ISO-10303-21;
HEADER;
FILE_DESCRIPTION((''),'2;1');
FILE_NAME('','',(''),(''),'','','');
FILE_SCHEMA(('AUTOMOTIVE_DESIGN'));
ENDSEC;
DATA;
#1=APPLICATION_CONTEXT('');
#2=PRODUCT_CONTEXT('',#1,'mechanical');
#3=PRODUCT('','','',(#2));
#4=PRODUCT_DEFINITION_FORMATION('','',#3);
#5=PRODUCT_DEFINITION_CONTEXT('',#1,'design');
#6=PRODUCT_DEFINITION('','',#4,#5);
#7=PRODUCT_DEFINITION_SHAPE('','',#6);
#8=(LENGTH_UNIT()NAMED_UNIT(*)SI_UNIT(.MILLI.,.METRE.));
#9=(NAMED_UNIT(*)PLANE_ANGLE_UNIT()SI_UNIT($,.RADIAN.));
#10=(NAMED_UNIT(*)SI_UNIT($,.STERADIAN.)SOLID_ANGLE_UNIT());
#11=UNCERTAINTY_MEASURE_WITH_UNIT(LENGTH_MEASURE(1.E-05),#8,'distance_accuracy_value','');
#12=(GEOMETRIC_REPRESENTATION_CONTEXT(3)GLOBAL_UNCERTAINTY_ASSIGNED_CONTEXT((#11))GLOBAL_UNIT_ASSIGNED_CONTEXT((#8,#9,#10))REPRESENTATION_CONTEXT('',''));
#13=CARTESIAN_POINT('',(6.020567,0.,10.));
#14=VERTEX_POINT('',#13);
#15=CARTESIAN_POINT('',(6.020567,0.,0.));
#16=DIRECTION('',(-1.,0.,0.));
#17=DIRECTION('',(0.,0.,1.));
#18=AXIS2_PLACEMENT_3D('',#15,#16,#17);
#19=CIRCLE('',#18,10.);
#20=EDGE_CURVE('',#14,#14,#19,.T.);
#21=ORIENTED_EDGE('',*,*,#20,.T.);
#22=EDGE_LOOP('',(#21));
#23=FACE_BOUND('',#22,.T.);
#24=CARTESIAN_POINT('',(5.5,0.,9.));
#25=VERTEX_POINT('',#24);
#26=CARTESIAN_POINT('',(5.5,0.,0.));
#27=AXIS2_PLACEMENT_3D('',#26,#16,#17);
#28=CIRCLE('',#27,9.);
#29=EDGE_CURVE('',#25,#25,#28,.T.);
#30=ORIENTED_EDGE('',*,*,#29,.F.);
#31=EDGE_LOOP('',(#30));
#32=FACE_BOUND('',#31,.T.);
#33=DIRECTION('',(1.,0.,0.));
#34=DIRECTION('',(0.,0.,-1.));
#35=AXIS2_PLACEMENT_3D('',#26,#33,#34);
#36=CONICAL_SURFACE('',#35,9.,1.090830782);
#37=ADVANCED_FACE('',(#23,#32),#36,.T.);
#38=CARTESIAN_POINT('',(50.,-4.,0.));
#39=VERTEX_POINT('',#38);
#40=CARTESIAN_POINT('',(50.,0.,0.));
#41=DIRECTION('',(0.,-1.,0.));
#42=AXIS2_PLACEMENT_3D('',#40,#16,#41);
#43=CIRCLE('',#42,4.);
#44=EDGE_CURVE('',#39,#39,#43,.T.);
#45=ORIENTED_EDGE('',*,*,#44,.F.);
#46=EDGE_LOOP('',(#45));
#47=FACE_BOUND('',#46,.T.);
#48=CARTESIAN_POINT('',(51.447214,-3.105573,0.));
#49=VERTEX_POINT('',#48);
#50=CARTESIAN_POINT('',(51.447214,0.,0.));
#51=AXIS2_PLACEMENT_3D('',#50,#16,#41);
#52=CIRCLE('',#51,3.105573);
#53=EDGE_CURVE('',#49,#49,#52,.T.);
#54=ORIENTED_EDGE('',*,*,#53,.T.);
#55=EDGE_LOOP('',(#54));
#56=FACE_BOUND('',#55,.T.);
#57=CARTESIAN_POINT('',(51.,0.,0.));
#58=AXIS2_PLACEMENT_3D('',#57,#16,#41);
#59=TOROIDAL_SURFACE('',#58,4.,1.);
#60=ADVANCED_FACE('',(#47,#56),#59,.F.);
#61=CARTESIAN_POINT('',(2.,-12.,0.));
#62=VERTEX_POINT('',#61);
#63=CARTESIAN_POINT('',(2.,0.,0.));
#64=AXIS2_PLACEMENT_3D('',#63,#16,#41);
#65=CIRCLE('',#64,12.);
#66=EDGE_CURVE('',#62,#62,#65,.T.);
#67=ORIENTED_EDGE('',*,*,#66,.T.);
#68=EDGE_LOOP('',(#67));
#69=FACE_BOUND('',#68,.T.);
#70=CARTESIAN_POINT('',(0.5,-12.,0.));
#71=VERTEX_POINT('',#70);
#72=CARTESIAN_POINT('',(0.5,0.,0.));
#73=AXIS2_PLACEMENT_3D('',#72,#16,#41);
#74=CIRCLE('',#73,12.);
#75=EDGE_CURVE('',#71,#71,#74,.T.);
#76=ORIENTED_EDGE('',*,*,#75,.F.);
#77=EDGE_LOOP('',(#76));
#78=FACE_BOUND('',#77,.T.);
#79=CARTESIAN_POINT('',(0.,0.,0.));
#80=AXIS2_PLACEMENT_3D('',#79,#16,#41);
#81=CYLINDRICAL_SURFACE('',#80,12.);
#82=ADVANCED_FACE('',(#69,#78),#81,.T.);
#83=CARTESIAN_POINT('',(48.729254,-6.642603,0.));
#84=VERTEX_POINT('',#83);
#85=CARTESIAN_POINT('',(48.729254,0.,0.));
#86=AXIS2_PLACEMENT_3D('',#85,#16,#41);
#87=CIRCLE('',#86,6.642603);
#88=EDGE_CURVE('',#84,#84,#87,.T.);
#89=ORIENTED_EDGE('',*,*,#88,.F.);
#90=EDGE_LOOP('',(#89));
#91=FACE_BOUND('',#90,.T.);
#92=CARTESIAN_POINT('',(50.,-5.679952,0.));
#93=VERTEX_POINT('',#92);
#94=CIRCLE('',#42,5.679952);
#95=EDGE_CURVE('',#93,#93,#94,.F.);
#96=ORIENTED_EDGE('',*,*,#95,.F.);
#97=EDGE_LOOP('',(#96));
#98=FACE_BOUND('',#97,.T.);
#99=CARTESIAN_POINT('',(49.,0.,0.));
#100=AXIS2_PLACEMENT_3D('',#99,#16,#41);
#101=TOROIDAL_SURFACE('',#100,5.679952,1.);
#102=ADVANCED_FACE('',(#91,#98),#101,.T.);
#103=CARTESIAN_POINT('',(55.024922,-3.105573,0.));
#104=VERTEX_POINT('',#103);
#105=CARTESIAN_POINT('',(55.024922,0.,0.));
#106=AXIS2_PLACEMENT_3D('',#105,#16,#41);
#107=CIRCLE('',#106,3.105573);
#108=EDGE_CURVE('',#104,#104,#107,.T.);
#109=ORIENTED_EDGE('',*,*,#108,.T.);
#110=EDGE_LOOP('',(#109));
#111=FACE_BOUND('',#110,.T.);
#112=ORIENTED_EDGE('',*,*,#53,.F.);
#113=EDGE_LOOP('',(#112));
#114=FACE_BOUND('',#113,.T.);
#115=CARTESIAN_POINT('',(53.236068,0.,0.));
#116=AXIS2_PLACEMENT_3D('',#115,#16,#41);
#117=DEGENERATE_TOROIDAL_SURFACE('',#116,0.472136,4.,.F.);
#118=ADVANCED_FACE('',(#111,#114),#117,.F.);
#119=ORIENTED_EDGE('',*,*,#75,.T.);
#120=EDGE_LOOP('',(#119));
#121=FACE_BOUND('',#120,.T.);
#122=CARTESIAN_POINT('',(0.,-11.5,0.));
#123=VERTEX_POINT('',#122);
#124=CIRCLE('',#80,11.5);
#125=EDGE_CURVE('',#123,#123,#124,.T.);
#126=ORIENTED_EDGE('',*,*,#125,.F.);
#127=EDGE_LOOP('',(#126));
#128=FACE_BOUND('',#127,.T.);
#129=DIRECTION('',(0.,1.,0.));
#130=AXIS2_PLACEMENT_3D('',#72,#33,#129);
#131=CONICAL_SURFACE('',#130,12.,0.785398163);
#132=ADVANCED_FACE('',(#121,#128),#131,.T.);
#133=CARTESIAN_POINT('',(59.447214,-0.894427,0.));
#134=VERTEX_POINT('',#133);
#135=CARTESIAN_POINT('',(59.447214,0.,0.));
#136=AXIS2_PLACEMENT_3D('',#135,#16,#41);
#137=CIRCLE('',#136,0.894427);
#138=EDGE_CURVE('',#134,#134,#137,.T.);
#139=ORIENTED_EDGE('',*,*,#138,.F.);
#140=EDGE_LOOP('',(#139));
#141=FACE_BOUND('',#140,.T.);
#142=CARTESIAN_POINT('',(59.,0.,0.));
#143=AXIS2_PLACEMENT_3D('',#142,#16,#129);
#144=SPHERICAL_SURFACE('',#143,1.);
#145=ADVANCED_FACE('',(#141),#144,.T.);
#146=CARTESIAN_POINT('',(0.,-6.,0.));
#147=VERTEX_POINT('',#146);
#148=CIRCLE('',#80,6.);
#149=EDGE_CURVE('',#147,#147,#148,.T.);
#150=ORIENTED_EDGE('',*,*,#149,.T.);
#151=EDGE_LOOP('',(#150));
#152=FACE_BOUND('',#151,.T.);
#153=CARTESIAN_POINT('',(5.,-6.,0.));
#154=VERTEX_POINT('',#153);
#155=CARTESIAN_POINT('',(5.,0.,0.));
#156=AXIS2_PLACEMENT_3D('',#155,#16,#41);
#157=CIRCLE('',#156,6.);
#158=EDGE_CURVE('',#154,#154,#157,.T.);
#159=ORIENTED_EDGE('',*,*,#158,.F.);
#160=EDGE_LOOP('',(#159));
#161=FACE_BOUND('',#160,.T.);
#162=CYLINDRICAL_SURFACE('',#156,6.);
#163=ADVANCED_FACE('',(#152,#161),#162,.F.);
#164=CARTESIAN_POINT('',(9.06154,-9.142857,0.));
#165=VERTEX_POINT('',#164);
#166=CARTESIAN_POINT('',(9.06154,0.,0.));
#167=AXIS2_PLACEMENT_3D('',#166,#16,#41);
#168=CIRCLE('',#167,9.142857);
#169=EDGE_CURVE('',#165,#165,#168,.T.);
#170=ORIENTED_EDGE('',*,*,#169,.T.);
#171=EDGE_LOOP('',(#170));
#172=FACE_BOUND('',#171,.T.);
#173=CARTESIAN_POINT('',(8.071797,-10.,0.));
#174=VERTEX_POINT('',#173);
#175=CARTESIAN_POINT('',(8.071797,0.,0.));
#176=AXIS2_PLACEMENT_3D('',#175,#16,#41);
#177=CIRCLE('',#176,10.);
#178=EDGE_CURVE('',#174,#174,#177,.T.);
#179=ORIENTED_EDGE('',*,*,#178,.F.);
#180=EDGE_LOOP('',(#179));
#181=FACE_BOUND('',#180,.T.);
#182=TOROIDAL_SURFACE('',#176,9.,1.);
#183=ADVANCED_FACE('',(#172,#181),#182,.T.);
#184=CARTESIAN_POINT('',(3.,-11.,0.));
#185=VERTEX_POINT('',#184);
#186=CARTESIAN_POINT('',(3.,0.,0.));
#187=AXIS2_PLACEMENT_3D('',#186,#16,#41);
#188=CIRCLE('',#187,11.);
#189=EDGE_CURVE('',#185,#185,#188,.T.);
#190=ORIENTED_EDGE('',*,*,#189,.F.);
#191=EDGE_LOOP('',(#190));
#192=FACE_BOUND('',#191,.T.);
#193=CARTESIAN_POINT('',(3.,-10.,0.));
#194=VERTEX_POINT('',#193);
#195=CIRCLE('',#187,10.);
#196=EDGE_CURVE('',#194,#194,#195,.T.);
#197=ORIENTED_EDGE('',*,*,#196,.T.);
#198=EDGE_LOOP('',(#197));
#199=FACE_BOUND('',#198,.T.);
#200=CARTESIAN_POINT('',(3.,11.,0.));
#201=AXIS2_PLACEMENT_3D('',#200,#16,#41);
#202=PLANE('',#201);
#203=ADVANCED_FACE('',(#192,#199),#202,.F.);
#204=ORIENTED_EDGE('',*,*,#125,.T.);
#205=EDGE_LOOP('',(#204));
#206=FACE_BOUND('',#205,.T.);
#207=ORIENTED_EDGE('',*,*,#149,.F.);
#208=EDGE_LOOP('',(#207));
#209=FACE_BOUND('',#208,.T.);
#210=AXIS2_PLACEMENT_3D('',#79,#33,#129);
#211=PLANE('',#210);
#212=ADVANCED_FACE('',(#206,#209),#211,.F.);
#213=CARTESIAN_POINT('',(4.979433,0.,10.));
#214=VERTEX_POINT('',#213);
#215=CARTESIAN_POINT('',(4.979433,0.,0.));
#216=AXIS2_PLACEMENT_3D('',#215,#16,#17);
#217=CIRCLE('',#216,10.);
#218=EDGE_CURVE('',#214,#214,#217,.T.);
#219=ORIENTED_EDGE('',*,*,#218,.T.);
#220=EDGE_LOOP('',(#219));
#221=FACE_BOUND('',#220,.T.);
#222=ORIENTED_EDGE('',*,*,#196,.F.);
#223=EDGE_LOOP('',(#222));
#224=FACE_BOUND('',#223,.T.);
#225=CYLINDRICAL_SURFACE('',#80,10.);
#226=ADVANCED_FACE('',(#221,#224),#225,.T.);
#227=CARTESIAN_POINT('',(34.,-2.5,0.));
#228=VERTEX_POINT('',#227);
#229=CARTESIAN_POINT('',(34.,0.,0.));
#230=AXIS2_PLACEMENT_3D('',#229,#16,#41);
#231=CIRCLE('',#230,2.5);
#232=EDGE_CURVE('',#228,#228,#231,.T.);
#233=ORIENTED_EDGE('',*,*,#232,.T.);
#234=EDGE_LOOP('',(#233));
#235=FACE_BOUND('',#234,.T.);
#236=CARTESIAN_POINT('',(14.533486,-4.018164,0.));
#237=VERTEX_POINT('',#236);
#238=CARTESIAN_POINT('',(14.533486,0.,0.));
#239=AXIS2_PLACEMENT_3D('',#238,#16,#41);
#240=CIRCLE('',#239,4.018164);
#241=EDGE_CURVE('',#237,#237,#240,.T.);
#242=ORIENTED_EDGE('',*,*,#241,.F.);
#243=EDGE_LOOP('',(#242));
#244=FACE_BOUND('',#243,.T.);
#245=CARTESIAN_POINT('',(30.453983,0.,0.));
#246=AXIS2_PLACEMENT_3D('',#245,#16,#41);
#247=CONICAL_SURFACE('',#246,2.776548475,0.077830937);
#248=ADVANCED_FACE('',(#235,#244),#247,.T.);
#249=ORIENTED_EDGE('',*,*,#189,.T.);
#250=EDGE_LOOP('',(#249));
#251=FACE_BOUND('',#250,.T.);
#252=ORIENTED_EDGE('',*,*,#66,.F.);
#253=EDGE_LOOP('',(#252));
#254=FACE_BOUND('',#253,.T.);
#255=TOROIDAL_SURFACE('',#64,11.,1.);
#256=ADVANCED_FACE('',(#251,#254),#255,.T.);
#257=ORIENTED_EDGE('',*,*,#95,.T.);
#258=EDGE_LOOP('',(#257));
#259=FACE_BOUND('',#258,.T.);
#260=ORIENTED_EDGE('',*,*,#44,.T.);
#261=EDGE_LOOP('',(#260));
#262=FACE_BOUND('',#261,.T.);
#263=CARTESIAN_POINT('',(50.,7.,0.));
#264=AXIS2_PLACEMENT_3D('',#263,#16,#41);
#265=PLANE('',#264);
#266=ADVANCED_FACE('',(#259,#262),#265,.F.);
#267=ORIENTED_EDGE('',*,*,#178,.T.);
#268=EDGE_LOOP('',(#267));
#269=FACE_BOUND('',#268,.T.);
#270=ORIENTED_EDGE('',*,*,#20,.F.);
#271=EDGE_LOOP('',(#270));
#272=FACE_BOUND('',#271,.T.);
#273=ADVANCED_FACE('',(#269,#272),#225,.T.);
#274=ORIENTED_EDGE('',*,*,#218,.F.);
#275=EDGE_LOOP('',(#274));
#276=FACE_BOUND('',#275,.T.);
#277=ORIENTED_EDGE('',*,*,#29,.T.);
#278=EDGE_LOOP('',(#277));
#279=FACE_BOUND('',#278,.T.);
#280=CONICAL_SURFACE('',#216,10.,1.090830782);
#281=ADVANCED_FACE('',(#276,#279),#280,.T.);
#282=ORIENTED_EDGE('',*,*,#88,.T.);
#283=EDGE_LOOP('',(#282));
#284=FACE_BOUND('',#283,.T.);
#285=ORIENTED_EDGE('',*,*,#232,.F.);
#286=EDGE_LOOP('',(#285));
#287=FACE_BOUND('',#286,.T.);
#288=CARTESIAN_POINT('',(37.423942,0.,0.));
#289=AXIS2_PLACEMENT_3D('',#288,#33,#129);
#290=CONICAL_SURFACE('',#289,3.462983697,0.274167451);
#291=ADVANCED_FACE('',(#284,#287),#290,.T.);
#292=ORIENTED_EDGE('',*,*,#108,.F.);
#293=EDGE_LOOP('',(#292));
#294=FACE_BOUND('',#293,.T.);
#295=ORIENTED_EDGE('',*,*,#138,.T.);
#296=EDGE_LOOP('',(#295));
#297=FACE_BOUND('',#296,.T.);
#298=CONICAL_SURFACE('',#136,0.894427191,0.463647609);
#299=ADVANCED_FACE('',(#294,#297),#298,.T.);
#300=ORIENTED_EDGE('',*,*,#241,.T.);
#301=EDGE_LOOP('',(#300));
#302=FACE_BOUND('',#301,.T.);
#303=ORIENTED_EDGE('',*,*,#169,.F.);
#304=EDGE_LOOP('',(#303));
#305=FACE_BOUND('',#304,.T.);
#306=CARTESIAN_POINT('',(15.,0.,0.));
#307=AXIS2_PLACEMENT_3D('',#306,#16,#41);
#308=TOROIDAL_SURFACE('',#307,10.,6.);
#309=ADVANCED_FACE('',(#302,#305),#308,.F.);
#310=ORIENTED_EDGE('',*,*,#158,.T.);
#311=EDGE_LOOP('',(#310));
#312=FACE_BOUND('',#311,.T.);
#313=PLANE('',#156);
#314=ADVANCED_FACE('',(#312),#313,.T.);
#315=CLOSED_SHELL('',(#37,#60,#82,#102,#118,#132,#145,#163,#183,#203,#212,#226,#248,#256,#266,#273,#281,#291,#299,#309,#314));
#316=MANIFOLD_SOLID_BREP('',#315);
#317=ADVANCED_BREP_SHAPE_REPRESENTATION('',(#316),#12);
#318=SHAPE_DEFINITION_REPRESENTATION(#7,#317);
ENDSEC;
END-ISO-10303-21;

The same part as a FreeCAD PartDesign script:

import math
import FreeCAD as App
import Part
import Sketcher

V = App.Vector
Q = App.Units.Quantity


def edges_at(feature, points):
    """Names of the edges that pass closest to the given points."""
    edges = feature.Shape.Edges
    near = lambda p: min(range(len(edges)), key=lambda i: edges[i].distToShape(Part.Vertex(*p))[0])
    return sorted({f"Edge{near(p) + 1}" for p in points})


def add_polygon(sketch, points):
    """Adds a closed chain of lines whose ends are joined by coincident constraints."""
    first, n = sketch.GeometryCount, len(points)
    for a, b in zip(points, points[1:] + points[:1]):
        sketch.addGeometry(Part.LineSegment(App.Vector(*a, 0), App.Vector(*b, 0)), False)
    for i in range(n):
        sketch.addConstraint(Sketcher.Constraint("Coincident", first + i, 2, first + (i + 1) % n, 1))

doc = App.newDocument("Part")
body = doc.addObject("PartDesign::Body", "Body")

# Sketch on XY plane
sketch1 = body.newObject("Sketcher::SketchObject", "Sketch")
sketch1.AttachmentSupport = (doc.getObject("XY_Plane"), [""])
sketch1.MapMode = "FlatFace"
sketch1.addGeometry([
    Part.LineSegment(V(0, 11.5, 0), V(0, 0, 0)),  # 0
    Part.LineSegment(V(0, 0, 0), V(60, 0, 0)),  # 1
    Part.ArcOfCircle(Part.Circle(V(59, 0, 0), V(0, 0, 1), 1), math.radians(0), math.radians(63)),  # 2
    Part.LineSegment(V(59.4, 0.9, 0), V(55, 3.1, 0)),  # 3
    Part.ArcOfCircle(Part.Circle(V(53.2, -0.5, 0), V(0, 0, 1), 4), math.radians(63), math.radians(117)),  # 4
    Part.ArcOfCircle(Part.Circle(V(51, 4, 0), V(0, 0, 1), 1), math.radians(-180), math.radians(-63)),  # 5
    Part.LineSegment(V(50, 4, 0), V(50, 7, 0)),  # 6
    Part.LineSegment(V(50, 7, 0), V(37.4, 3.5, 0)),  # 7
    Part.LineSegment(V(37.4, 3.5, 0), V(34, 2.5, 0)),  # 8
    Part.LineSegment(V(34, 2.5, 0), V(30.5, 2.8, 0)),  # 9
    Part.LineSegment(V(30.5, 2.8, 0), V(14.5, 4, 0)),  # 10
    Part.ArcOfCircle(Part.Circle(V(15, 10, 0), V(0, 0, 1), 6), math.radians(-172), math.radians(-94)),  # 11
    Part.ArcOfCircle(Part.Circle(V(8.1, 9, 0), V(0, 0, 1), 1), math.radians(8), math.radians(90)),  # 12
    Part.LineSegment(V(8.1, 10, 0), V(3, 10, 0)),  # 13
    Part.LineSegment(V(3, 10, 0), V(3, 11, 0)),  # 14
    Part.ArcOfCircle(Part.Circle(V(2, 11, 0), V(0, 0, 1), 1), math.radians(0), math.radians(90)),  # 15
    Part.LineSegment(V(2, 12, 0), V(0.5, 12, 0)),  # 16
    Part.LineSegment(V(0.5, 12, 0), V(0, 11.5, 0)),  # 17
], False)
sketch1.addConstraint([
    Sketcher.Constraint("Coincident", 0, 2, 1, 1),
    Sketcher.Constraint("Coincident", 1, 2, 2, 1),
    Sketcher.Constraint("Tangent", 2, 2, 3, 1),
    Sketcher.Constraint("Tangent", 3, 2, 4, 1),
    Sketcher.Constraint("Tangent", 4, 2, 5, 2),
    Sketcher.Constraint("Tangent", 5, 1, 6, 1),
    Sketcher.Constraint("Coincident", 6, 2, 7, 1),
    Sketcher.Constraint("Coincident", 7, 2, 8, 1),
    Sketcher.Constraint("Coincident", 8, 2, 9, 1),
    Sketcher.Constraint("Coincident", 9, 2, 10, 1),
    Sketcher.Constraint("Tangent", 10, 2, 11, 2),
    Sketcher.Constraint("Tangent", 11, 1, 12, 1),
    Sketcher.Constraint("Tangent", 12, 2, 13, 1),
    Sketcher.Constraint("Coincident", 13, 2, 14, 1),
    Sketcher.Constraint("Tangent", 14, 2, 15, 1),
    Sketcher.Constraint("Tangent", 15, 2, 16, 1),
    Sketcher.Constraint("Coincident", 16, 2, 17, 1),
    Sketcher.Constraint("Coincident", 17, 2, 0, 1),
    Sketcher.Constraint("Vertical", 0),
    Sketcher.Constraint("Horizontal", 1),
    Sketcher.Constraint("Vertical", 6),
    Sketcher.Constraint("Horizontal", 13),
    Sketcher.Constraint("Vertical", 14),
    Sketcher.Constraint("Horizontal", 16),
    Sketcher.Constraint("Coincident", 0, 2, -1, 1),
    Sketcher.Constraint("Equal", 2, 5),
    Sketcher.Constraint("Equal", 5, 12),
    Sketcher.Constraint("Equal", 12, 15),
    Sketcher.Constraint("PointOnObject", 2, 3, -1),
    Sketcher.Constraint("Parallel", 7, 8),
    Sketcher.Constraint("Parallel", 9, 10),
    Sketcher.Constraint("Horizontal", 3, 2, 4, 2),
    Sketcher.Constraint("Horizontal", 11, 3, 12, 2),
    Sketcher.Constraint("Equal", 8, 9),
    Sketcher.Constraint("Radius", 2, 1.0),
    Sketcher.Constraint("Radius", 4, 4.0),
    Sketcher.Constraint("Radius", 11, 6.0),
    Sketcher.Constraint("DistanceX", 1, 1, 1, 2, 60.0),
    Sketcher.Constraint("DistanceY", 6, 1, 6, 2, 3.0),
    Sketcher.Constraint("DistanceY", 14, 1, 14, 2, 1.0),
    Sketcher.Constraint("Angle", 17, Q("-135 deg")),
    Sketcher.Constraint("DistanceX", 16, 2, 16, 1, 1.5),
    Sketcher.Constraint("DistanceY", 0, 2, 0, 1, 11.5),
    Sketcher.Constraint("DistanceX", -1, 1, 5, 3, 51.0),
    Sketcher.Constraint("DistanceY", -1, 1, 5, 3, 4.0),
    Sketcher.Constraint("DistanceX", -1, 1, 11, 3, 15.0),
    Sketcher.Constraint("DistanceY", -1, 1, 11, 3, 10.0),
    Sketcher.Constraint("DistanceX", -1, 1, 8, 2, 34.0),
    Sketcher.Constraint("DistanceY", -1, 1, 8, 2, 2.5),
    Sketcher.Constraint("Distance", 10, 15.96884),
])
revolution = body.newObject("PartDesign::Revolution", "Revolution")
revolution.Profile = sketch1
revolution.ReferenceAxis = (sketch1, ["H_Axis"])
revolution.Angle = 360

# Sketch on XY plane
sketch2 = body.newObject("Sketcher::SketchObject", "Sketch001")
sketch2.AttachmentSupport = (doc.getObject("XY_Plane"), [""])
sketch2.MapMode = "FlatFace"
add_polygon(sketch2, [(5, 10), (5.5, 9), (6, 10)])  # lines 0-2
sketch2.addConstraint([
    Sketcher.Constraint("Horizontal", 2),
    Sketcher.Constraint("Equal", 0, 1),
    Sketcher.Constraint("DistanceY", -1, 1, 0, 2, 9.0),
    Sketcher.Constraint("DistanceY", -1, 1, 1, 2, 10.0),
    Sketcher.Constraint("Angle", 0, Q("-62.5 deg")),
    Sketcher.Constraint("DistanceX", -1, 1, 0, 2, 5.5),
])
groove = body.newObject("PartDesign::Groove", "Groove")
groove.Profile = sketch2
groove.ReferenceAxis = (sketch2, ["H_Axis"])
groove.Angle = 360

# Sketch on YZ plane
sketch3 = body.newObject("Sketcher::SketchObject", "Sketch002")
sketch3.AttachmentSupport = (doc.getObject("YZ_Plane"), [""])
sketch3.MapMode = "FlatFace"
sketch3.addGeometry(Part.Circle(V(0, 0, 0), V(0, 0, 1), 6), False)
sketch3.addConstraint([
    Sketcher.Constraint("Coincident", 0, 3, -1, 1),
    Sketcher.Constraint("Diameter", 0, 12.0),
])
pocket1 = body.newObject("PartDesign::Pocket", "Pocket")
pocket1.Profile = sketch3
pocket1.Length = 5
pocket1.Reversed = True
doc.recompute()

fillet = body.newObject("PartDesign::Fillet", "Fillet")
fillet.Base = (pocket1, edges_at(pocket1, [(50, 7, 0)]))
fillet.Radius = 1

doc.recompute()
